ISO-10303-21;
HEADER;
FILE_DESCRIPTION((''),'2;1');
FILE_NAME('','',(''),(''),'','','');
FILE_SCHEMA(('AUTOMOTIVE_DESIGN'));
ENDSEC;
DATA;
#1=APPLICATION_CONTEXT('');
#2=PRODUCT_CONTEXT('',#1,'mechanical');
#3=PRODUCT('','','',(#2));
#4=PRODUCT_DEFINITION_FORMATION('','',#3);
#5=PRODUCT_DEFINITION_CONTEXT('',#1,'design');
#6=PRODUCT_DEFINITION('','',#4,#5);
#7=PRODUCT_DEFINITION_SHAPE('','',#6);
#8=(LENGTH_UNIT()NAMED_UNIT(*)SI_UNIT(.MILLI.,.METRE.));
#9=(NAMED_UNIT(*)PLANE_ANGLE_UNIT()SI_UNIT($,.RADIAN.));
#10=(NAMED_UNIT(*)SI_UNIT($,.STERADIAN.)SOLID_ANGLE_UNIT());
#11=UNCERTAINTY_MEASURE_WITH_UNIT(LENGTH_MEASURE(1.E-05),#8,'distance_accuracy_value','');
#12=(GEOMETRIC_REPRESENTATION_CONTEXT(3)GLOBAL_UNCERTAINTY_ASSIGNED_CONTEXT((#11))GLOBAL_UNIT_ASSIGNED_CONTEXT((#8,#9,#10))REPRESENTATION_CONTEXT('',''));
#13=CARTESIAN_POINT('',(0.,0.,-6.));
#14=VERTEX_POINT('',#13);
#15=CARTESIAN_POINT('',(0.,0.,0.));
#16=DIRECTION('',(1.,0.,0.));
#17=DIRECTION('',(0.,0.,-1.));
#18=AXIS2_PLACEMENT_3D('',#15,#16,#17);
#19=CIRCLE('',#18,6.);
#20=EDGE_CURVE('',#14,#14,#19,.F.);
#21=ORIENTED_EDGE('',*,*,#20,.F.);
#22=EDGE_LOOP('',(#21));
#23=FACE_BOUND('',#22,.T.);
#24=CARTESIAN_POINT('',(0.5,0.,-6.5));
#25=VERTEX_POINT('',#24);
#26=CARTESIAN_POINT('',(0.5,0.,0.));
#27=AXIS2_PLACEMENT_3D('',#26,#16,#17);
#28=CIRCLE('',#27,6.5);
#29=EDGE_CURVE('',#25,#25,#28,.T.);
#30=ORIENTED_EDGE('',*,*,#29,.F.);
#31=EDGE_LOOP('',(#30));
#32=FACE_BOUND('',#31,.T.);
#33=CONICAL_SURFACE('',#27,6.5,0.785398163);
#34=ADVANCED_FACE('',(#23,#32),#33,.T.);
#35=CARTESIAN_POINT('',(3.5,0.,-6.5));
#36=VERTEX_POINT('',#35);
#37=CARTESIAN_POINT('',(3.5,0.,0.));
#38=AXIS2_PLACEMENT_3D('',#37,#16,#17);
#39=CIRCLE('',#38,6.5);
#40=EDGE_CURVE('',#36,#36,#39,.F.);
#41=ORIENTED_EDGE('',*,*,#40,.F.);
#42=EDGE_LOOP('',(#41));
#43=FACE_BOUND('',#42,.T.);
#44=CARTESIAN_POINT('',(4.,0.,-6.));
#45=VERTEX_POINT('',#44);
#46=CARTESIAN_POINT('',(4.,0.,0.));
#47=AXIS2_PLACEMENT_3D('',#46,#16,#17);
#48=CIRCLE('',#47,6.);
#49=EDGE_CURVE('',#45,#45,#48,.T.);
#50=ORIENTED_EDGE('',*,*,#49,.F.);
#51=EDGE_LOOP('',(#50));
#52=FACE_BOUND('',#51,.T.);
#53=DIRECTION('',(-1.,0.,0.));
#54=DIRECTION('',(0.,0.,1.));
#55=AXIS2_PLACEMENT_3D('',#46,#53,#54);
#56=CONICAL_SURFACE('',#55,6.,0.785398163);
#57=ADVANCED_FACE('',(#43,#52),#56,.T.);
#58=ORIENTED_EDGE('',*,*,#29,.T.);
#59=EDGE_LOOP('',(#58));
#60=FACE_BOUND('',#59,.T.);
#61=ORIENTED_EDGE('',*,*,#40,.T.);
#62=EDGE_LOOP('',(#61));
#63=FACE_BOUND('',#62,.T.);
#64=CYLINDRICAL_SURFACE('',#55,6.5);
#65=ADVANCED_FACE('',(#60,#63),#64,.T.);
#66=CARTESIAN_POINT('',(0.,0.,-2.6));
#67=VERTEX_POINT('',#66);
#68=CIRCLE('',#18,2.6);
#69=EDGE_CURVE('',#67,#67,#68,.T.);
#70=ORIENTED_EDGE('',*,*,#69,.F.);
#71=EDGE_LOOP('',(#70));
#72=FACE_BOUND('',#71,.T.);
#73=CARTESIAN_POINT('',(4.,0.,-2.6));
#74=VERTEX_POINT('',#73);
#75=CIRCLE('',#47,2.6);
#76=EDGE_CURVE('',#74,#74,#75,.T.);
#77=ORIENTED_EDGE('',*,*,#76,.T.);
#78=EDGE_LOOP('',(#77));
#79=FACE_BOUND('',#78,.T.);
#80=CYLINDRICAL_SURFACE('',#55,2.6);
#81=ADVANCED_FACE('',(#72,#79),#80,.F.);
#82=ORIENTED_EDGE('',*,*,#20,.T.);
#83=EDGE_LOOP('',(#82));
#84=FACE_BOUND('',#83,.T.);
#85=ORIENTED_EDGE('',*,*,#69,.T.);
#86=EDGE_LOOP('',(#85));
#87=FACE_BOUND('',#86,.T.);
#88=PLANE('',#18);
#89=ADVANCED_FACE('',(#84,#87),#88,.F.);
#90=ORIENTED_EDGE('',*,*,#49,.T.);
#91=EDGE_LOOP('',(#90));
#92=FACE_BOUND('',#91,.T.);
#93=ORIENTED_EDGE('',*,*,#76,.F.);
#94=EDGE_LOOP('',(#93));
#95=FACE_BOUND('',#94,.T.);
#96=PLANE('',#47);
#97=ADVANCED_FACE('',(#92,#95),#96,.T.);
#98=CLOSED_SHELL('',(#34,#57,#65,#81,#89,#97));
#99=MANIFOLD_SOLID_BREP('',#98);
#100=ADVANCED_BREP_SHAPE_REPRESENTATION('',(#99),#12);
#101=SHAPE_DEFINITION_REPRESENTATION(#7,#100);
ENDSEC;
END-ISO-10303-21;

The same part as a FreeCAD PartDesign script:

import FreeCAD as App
import Part
import Sketcher


def edges_at(feature, points):
    """Names of the edges that pass closest to the given points."""
    edges = feature.Shape.Edges
    near = lambda p: min(range(len(edges)), key=lambda i: edges[i].distToShape(Part.Vertex(*p))[0])
    return sorted({f"Edge{near(p) + 1}" for p in points})

doc = App.newDocument("Part")
body = doc.addObject("PartDesign::Body", "Body")

# Sketch on YZ plane
sketch1 = doc.addObject("Sketcher::SketchObject", "Sketch")
body.addObject(sketch1)
sketch1.AttachmentSupport = (doc.YZ_Plane, [""])
sketch1.MapMode = "FlatFace"
sketch1.addGeometry(Part.Circle(App.Vector(0, 0, 0), App.Vector(0, 0, 1), 6.5), False)
sketch1.addGeometry(Part.Circle(App.Vector(0, 0, 0), App.Vector(0, 0, 1), 2.6), False)
sketch1.addConstraint(Sketcher.Constraint("Coincident", 0, 3, -1, 1))
sketch1.addConstraint(Sketcher.Constraint("Coincident", 1, 3, -1, 1))
sketch1.addConstraint(Sketcher.Constraint("Diameter", 0, 13.0))
sketch1.addConstraint(Sketcher.Constraint("Diameter", 1, 5.2))
pad1 = doc.addObject("PartDesign::Pad", "Pad")
body.addObject(pad1)
pad1.Profile = sketch1
pad1.Length = 4
doc.recompute()

chamfer = doc.addObject("PartDesign::Chamfer", "Chamfer")
body.addObject(chamfer)
chamfer.Base = (pad1, edges_at(pad1, [(0, 0, 6.5), (4, 0, 6.5)]))
chamfer.Size = 0.5

doc.recompute()
